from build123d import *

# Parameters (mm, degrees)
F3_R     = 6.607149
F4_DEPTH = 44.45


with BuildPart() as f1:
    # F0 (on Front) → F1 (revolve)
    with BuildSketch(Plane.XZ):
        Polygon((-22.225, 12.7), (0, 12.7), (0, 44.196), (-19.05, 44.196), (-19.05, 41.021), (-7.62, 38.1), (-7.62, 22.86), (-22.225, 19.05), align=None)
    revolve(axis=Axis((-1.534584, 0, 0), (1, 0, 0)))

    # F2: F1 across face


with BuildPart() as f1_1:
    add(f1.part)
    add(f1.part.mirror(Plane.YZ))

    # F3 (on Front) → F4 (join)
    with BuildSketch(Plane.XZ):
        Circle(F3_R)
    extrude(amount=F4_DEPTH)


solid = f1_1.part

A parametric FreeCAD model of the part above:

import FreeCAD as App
import Part
import Sketcher

V = App.Vector
Q = App.Units.Quantity

doc = App.newDocument("Part")
params = doc.addObject("Spreadsheet::Sheet", "Params")
for row, (alias, value) in enumerate([
    ("sketch1_height", "0.6 in"),
    ("sketch1_width", "0.75 in"),
    ("sketch1_height2", "1.24 in"),
    ("sketch1_height3", "0.25 in"),
    ("sketch1_width2", "0.875 in"),
    ("revolution_angle", "360 deg"),
    ("pad1_length", "1.75 in"),
], start=1):
    params.set(f"A{row}", alias)
    params.set(f"B{row}", "=" + value)
    params.setAlias(f"B{row}", alias)

body = doc.addObject("PartDesign::Body", "Body")

sketch1 = doc.addObject("Sketcher::SketchObject", "Sketch")
body.addObject(sketch1)
sketch1.AttachmentSupport = (doc.XZ_Plane, [""])
sketch1.MapMode = "FlatFace"
sketch1.addGeometry([
    Part.LineSegment(V(-22.2, 12.7, 0), V(0, 12.7, 0)),
    Part.LineSegment(V(0, 12.7, 0), V(0, 44.2, 0)),
    Part.LineSegment(V(0, 44.2, 0), V(-19.1, 44.2, 0)),
    Part.LineSegment(V(-19.1, 44.2, 0), V(-19.1, 41, 0)),
    Part.LineSegment(V(-19.1, 41, 0), V(-7.6, 38.1, 0)),
    Part.LineSegment(V(-7.6, 38.1, 0), V(-7.6, 22.9, 0)),
    Part.LineSegment(V(-7.6, 22.9, 0), V(-22.2, 19.1, 0)),
    Part.LineSegment(V(-22.2, 19.1, 0), V(-22.2, 12.7, 0)),
], False)
sketch1.addConstraint([
    Sketcher.Constraint("Coincident", 0, 2, 1, 1),
    Sketcher.Constraint("Coincident", 1, 2, 2, 1),
    Sketcher.Constraint("Coincident", 2, 2, 3, 1),
    Sketcher.Constraint("Coincident", 3, 2, 4, 1),
    Sketcher.Constraint("Coincident", 4, 2, 5, 1),
    Sketcher.Constraint("Coincident", 5, 2, 6, 1),
    Sketcher.Constraint("Coincident", 6, 2, 7, 1),
    Sketcher.Constraint("Coincident", 7, 2, 0, 1),
    Sketcher.Constraint("Horizontal", 0),
    Sketcher.Constraint("Vertical", 1),
    Sketcher.Constraint("Horizontal", 2),
    Sketcher.Constraint("Vertical", 3),
    Sketcher.Constraint("Vertical", 5),
    Sketcher.Constraint("Vertical", 7),
    Sketcher.Constraint("PointOnObject", 0, 2, -2),
    Sketcher.Constraint("DistanceY", 5, 2, 5, 1, Q("0.6 in")),
    Sketcher.Constraint("DistanceY", 0, 2, 4, 2, Q("1 in")),
    Sketcher.Constraint("DistanceX", 2, 2, 2, 1, Q("0.75 in")),
    Sketcher.Constraint("DistanceY", 1, 1, 1, 2, Q("1.24 in")),
    Sketcher.Constraint("DistanceY", 7, 2, 7, 1, Q("0.25 in")),
    Sketcher.Constraint("DistanceY", -1, 1, 0, 2, Q("0.5 in")),
    Sketcher.Constraint("DistanceX", 4, 2, -1, 1, Q("0.3 in")),
    Sketcher.Constraint("DistanceX", 0, 1, 0, 2, Q("0.875 in")),
    Sketcher.Constraint("DistanceY", 3, 2, 3, 1, Q("0.125 in")),
])
sketch1.setExpression("Constraints[15]", "Params.sketch1_height")
sketch1.setExpression("Constraints[17]", "Params.sketch1_width")
sketch1.setExpression("Constraints[18]", "Params.sketch1_height2")
sketch1.setExpression("Constraints[19]", "Params.sketch1_height3")
sketch1.setExpression("Constraints[22]", "Params.sketch1_width2")
revolution = doc.addObject("PartDesign::Revolution", "Revolution")
body.addObject(revolution)
revolution.Profile = sketch1
revolution.ReferenceAxis = (sketch1, ["H_Axis"])
revolution.setExpression("Angle", "Params.revolution_angle")
body2 = doc.addObject("PartDesign::Body", "Body001")
doc.recompute()

body2.BaseFeature = body
doc.recompute()

mirroring = doc.addObject("Part::Mirroring", "Mirroring")
mirroring.Source = body
mirroring.Base = V(0, 0, 0)
mirroring.Normal = V(1, 0, 0)
body3 = doc.addObject("PartDesign::Body", "Body002")
body3.BaseFeature = mirroring
boolean = doc.addObject("PartDesign::Boolean", "Boolean")
body2.addObject(boolean)
boolean.Type = "Fuse"
boolean.addObjects([body3])
doc.recompute()

sketch2 = doc.addObject("Sketcher::SketchObject", "Sketch001")
body2.addObject(sketch2)
sketch2.AttachmentSupport = (doc.getObject("XZ_Plane001"), [""])
sketch2.MapMode = "FlatFace"
sketch2.addGeometry(Part.Circle(V(0, 0, 0), V(0, 0, 1), 7), False)
sketch2.addConstraint([
    Sketcher.Constraint("Coincident", 0, 3, -1, 1),
    Sketcher.Constraint("Diameter", 0, Q("13.214298 mm")),
])
pad1 = doc.addObject("PartDesign::Pad", "Pad")
body2.addObject(pad1)
pad1.Profile = sketch2
pad1.setExpression("Length", "Params.pad1_length")
mirroring.Visibility = False

doc.recompute()
